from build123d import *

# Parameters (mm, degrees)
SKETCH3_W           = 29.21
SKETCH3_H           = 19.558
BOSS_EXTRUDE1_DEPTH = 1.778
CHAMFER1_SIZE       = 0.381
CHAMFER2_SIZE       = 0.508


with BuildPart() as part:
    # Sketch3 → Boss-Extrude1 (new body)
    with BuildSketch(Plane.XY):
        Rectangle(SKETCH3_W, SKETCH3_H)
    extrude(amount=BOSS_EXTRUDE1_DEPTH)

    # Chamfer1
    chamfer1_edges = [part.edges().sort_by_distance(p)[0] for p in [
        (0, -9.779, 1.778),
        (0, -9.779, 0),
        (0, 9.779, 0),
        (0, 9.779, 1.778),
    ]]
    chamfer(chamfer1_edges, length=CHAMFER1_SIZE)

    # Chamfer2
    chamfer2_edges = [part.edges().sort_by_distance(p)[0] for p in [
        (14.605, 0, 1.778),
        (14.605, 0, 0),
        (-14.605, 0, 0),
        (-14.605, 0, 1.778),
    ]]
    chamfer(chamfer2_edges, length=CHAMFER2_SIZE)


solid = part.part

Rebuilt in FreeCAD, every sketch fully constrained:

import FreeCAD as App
import Part
import Sketcher
Q = App.Units.Quantity


def edges_at(feature, points):
    """Names of the edges that pass closest to the given points."""
    edges = feature.Shape.Edges
    near = lambda p: min(range(len(edges)), key=lambda i: edges[i].distToShape(Part.Vertex(*p))[0])
    return sorted({f"Edge{near(p) + 1}" for p in points})

doc = App.newDocument("Part")
body = doc.addObject("PartDesign::Body", "Body")

# Sketch on XY plane
sketch1 = doc.addObject("Sketcher::SketchObject", "Sketch")
body.addObject(sketch1)
sketch1.AttachmentSupport = (doc.XY_Plane, [""])
sketch1.MapMode = "FlatFace"
sketch1.addGeometry([
    Part.LineSegment(App.Vector(-15, 10, 0), App.Vector(-15, -10, 0)),
    Part.LineSegment(App.Vector(-15, -10, 0), App.Vector(15, -10, 0)),
    Part.LineSegment(App.Vector(15, -10, 0), App.Vector(15, 10, 0)),
    Part.LineSegment(App.Vector(15, 10, 0), App.Vector(-15, 10, 0)),
], False)
sketch1.addConstraint([
    Sketcher.Constraint("Coincident", 0, 2, 1, 1),
    Sketcher.Constraint("Coincident", 1, 2, 2, 1),
    Sketcher.Constraint("Coincident", 2, 2, 3, 1),
    Sketcher.Constraint("Coincident", 3, 2, 0, 1),
    Sketcher.Constraint("Vertical", 0),
    Sketcher.Constraint("Horizontal", 1),
    Sketcher.Constraint("Vertical", 2),
    Sketcher.Constraint("Horizontal", 3),
    Sketcher.Constraint("Symmetric", 0, 2, 2, 2, -1, 1),
    Sketcher.Constraint("DistanceX", 1, 1, 1, 2, Q("1.15 in")),
    Sketcher.Constraint("DistanceY", 0, 2, 0, 1, Q("0.77 in")),
])
pad1 = doc.addObject("PartDesign::Pad", "Pad")
body.addObject(pad1)
pad1.Profile = sketch1
pad1.Length = Q("0.07 in")
doc.recompute()

chamfer = doc.addObject("PartDesign::Chamfer", "Chamfer")
body.addObject(chamfer)
chamfer.Base = (pad1, edges_at(pad1, [
    (0, -9.779, 1.778),
    (0, -9.779, 0),
    (0, 9.779, 0),
    (0, 9.779, 1.778),
]))
chamfer.Size = Q("0.015 in")
doc.recompute()

chamfer2 = doc.addObject("PartDesign::Chamfer", "Chamfer001")
body.addObject(chamfer2)
chamfer2.Base = (chamfer, edges_at(chamfer, [
    (14.605, 0, 1.778),
    (14.605, 0, 0),
    (-14.605, 0, 0),
    (-14.605, 0, 1.778),
]))
chamfer2.Size = Q("0.02 in")

doc.recompute()
